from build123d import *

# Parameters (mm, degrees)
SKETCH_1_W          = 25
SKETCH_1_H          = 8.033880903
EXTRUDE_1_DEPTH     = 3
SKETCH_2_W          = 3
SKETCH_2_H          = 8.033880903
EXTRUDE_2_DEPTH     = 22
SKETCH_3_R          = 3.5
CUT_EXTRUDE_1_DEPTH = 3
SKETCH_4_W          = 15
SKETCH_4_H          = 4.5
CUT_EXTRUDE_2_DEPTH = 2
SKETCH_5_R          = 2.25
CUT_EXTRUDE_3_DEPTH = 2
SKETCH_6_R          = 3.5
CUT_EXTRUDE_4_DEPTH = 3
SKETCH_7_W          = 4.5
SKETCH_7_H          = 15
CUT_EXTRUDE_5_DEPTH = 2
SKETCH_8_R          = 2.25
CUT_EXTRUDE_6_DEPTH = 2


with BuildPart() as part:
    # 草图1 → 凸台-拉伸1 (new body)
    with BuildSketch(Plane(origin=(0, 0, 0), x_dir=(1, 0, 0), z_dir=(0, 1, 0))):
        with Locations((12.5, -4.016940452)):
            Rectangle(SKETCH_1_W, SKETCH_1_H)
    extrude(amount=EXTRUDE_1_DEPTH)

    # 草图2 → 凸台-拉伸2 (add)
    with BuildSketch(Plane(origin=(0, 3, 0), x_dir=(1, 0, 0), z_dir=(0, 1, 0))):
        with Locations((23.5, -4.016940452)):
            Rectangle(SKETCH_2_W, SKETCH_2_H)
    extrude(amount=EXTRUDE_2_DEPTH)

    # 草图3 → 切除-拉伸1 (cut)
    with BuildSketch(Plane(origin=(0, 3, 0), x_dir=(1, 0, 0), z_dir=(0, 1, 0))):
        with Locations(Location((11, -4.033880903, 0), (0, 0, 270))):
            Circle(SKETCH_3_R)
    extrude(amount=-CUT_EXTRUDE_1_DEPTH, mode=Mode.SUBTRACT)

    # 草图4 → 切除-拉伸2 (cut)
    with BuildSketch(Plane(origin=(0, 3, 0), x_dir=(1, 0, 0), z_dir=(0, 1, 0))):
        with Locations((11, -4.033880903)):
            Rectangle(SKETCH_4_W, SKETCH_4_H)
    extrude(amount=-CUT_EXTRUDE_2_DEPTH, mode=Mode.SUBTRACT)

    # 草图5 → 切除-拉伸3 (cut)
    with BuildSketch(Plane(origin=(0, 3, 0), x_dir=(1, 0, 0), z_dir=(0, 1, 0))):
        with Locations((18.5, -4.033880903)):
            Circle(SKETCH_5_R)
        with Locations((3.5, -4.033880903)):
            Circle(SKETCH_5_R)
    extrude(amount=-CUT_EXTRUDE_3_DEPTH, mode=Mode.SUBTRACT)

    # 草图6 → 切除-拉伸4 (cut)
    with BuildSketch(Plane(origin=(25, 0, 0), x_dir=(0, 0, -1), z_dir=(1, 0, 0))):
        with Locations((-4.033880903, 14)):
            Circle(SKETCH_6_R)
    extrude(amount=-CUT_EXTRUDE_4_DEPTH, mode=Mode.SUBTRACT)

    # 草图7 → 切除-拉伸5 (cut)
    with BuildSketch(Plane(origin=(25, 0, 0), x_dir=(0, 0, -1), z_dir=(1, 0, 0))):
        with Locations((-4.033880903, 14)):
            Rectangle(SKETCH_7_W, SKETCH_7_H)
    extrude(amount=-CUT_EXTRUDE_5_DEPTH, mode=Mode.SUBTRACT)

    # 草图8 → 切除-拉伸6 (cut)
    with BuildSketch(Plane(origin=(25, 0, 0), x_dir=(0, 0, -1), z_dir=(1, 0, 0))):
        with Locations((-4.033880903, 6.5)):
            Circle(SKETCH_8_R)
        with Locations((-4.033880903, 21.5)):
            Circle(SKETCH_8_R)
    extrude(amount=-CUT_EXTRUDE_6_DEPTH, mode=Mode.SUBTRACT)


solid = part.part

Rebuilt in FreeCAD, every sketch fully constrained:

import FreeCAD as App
import Part
import Sketcher
Q = App.Units.Quantity

doc = App.newDocument("Part")
body = doc.addObject("PartDesign::Body", "Body")

# Sketch on XZ plane
sketch1 = body.newObject("Sketcher::SketchObject", "Sketch")
sketch1.AttachmentSupport = (doc.getObject("XZ_Plane"), [""])
sketch1.MapMode = "FlatFace"
sketch1.addGeometry([
    Part.LineSegment(App.Vector(0, 0, 0), App.Vector(0, 8.033881, 0)),
    Part.LineSegment(App.Vector(0, 8.033881, 0), App.Vector(25, 8.033881, 0)),
    Part.LineSegment(App.Vector(25, 8.033881, 0), App.Vector(25, 0, 0)),
    Part.LineSegment(App.Vector(25, 0, 0), App.Vector(0, 0, 0)),
], False)
sketch1.addConstraint([
    Sketcher.Constraint("Coincident", 0, 2, 1, 1),
    Sketcher.Constraint("Coincident", 1, 2, 2, 1),
    Sketcher.Constraint("Coincident", 2, 2, 3, 1),
    Sketcher.Constraint("Coincident", 3, 2, 0, 1),
    Sketcher.Constraint("Vertical", 0),
    Sketcher.Constraint("Horizontal", 1),
    Sketcher.Constraint("Vertical", 2),
    Sketcher.Constraint("Horizontal", 3),
    Sketcher.Constraint("Coincident", 3, 2, -1, 1),
    Sketcher.Constraint("DistanceX", 1, 1, 1, 2, Q("25 mm")),
    Sketcher.Constraint("DistanceY", 0, 1, 0, 2, Q("8.033881 mm")),
])
pad1 = body.newObject("PartDesign::Pad", "Pad")
pad1.Profile = sketch1
pad1.Length = 3
pad1.Reversed = True

# Sketch on XZ plane
sketch2 = body.newObject("Sketcher::SketchObject", "Sketch001")
sketch2.AttachmentSupport = (doc.getObject("XZ_Plane"), [""])
sketch2.MapMode = "FlatFace"
sketch2.AttachmentOffset = App.Placement(App.Vector(0, 0, -3), App.Rotation())
sketch2.addGeometry([
    Part.LineSegment(App.Vector(22, 0, 0), App.Vector(22, 8.033881, 0)),
    Part.LineSegment(App.Vector(22, 8.033881, 0), App.Vector(25, 8.033881, 0)),
    Part.LineSegment(App.Vector(25, 8.033881, 0), App.Vector(25, 0, 0)),
    Part.LineSegment(App.Vector(25, 0, 0), App.Vector(22, 0, 0)),
], False)
sketch2.addConstraint([
    Sketcher.Constraint("Coincident", 0, 2, 1, 1),
    Sketcher.Constraint("Coincident", 1, 2, 2, 1),
    Sketcher.Constraint("Coincident", 2, 2, 3, 1),
    Sketcher.Constraint("Coincident", 3, 2, 0, 1),
    Sketcher.Constraint("Vertical", 0),
    Sketcher.Constraint("Horizontal", 1),
    Sketcher.Constraint("Vertical", 2),
    Sketcher.Constraint("Horizontal", 3),
    Sketcher.Constraint("PointOnObject", 2, 2, -1),
    Sketcher.Constraint("DistanceX", 1, 1, 1, 2, Q("3 mm")),
    Sketcher.Constraint("DistanceX", -1, 1, 0, 2, Q("22 mm")),
    Sketcher.Constraint("DistanceY", 0, 1, 0, 2, Q("8.033881 mm")),
])
pad2 = body.newObject("PartDesign::Pad", "Pad001")
pad2.Profile = sketch2
pad2.Length = 22
pad2.Reversed = True

# Sketch on XZ plane
sketch3 = body.newObject("Sketcher::SketchObject", "Sketch002")
sketch3.AttachmentSupport = (doc.getObject("XZ_Plane"), [""])
sketch3.MapMode = "FlatFace"
sketch3.AttachmentOffset = App.Placement(App.Vector(0, 0, -3), App.Rotation())
sketch3.addGeometry(Part.Circle(App.Vector(11, 4.033881, 0), App.Vector(0, 0, 1), 3.5), False)
sketch3.addConstraint([
    Sketcher.Constraint("Diameter", 0, Q("7 mm")),
    Sketcher.Constraint("DistanceX", -1, 1, 0, 3, Q("11 mm")),
    Sketcher.Constraint("DistanceY", -1, 1, 0, 3, Q("4.033881 mm")),
])
pocket1 = body.newObject("PartDesign::Pocket", "Pocket")
pocket1.Profile = sketch3
pocket1.Length = 3
pocket1.Reversed = True

# Sketch on XZ plane
sketch4 = body.newObject("Sketcher::SketchObject", "Sketch003")
sketch4.AttachmentSupport = (doc.getObject("XZ_Plane"), [""])
sketch4.MapMode = "FlatFace"
sketch4.AttachmentOffset = App.Placement(App.Vector(0, 0, -3), App.Rotation())
sketch4.addGeometry([
    Part.LineSegment(App.Vector(3.5, 1.783881, 0), App.Vector(3.5, 6.283881, 0)),
    Part.LineSegment(App.Vector(3.5, 6.283881, 0), App.Vector(18.5, 6.283881, 0)),
    Part.LineSegment(App.Vector(18.5, 6.283881, 0), App.Vector(18.5, 1.783881, 0)),
    Part.LineSegment(App.Vector(18.5, 1.783881, 0), App.Vector(3.5, 1.783881, 0)),
], False)
sketch4.addConstraint([
    Sketcher.Constraint("Coincident", 0, 2, 1, 1),
    Sketcher.Constraint("Coincident", 1, 2, 2, 1),
    Sketcher.Constraint("Coincident", 2, 2, 3, 1),
    Sketcher.Constraint("Coincident", 3, 2, 0, 1),
    Sketcher.Constraint("Vertical", 0),
    Sketcher.Constraint("Horizontal", 1),
    Sketcher.Constraint("Vertical", 2),
    Sketcher.Constraint("Horizontal", 3),
    Sketcher.Constraint("DistanceX", 1, 1, 1, 2, Q("15 mm")),
    Sketcher.Constraint("DistanceY", 0, 1, 0, 2, Q("4.5 mm")),
    Sketcher.Constraint("DistanceX", -1, 1, 0, 2, Q("3.5 mm")),
    Sketcher.Constraint("DistanceY", -1, 1, 0, 2, Q("6.283881 mm")),
])
pocket2 = body.newObject("PartDesign::Pocket", "Pocket001")
pocket2.Profile = sketch4
pocket2.Length = 2
pocket2.Reversed = True

# Sketch on XZ plane
sketch5 = body.newObject("Sketcher::SketchObject", "Sketch004")
sketch5.AttachmentSupport = (doc.getObject("XZ_Plane"), [""])
sketch5.MapMode = "FlatFace"
sketch5.AttachmentOffset = App.Placement(App.Vector(0, 0, -3), App.Rotation())
sketch5.addGeometry([
    Part.Circle(App.Vector(18.5, 4.033881, 0), App.Vector(0, 0, 1), 2.25),
    Part.Circle(App.Vector(3.5, 4.033881, 0), App.Vector(0, 0, 1), 2.25),
], False)
sketch5.addConstraint([
    Sketcher.Constraint("Equal", 0, 1),
    Sketcher.Constraint("Horizontal", 0, 3, 1, 3),
    Sketcher.Constraint("Diameter", 0, Q("4.5 mm")),
    Sketcher.Constraint("DistanceX", 1, 3, 0, 3, Q("15 mm")),
    Sketcher.Constraint("DistanceX", -1, 1, 0, 3, Q("18.5 mm")),
    Sketcher.Constraint("DistanceY", -1, 1, 0, 3, Q("4.033881 mm")),
])
pocket3 = body.newObject("PartDesign::Pocket", "Pocket002")
pocket3.Profile = sketch5
pocket3.Length = 2
pocket3.Reversed = True

# Sketch on YZ plane
sketch6 = body.newObject("Sketcher::SketchObject", "Sketch005")
sketch6.AttachmentSupport = (doc.getObject("YZ_Plane"), [""])
sketch6.MapMode = "FlatFace"
sketch6.AttachmentOffset = App.Placement(App.Vector(0, 0, 25), App.Rotation())
sketch6.addGeometry(Part.Circle(App.Vector(14, 4.033881, 0), App.Vector(0, 0, 1), 3.5), False)
sketch6.addConstraint([
    Sketcher.Constraint("Diameter", 0, Q("7 mm")),
    Sketcher.Constraint("DistanceX", -1, 1, 0, 3, Q("14 mm")),
    Sketcher.Constraint("DistanceY", -1, 1, 0, 3, Q("4.033881 mm")),
])
pocket4 = body.newObject("PartDesign::Pocket", "Pocket003")
pocket4.Profile = sketch6
pocket4.Length = 3

# Sketch on YZ plane
sketch7 = body.newObject("Sketcher::SketchObject", "Sketch006")
sketch7.AttachmentSupport = (doc.getObject("YZ_Plane"), [""])
sketch7.MapMode = "FlatFace"
sketch7.AttachmentOffset = App.Placement(App.Vector(0, 0, 25), App.Rotation())
sketch7.addGeometry([
    Part.LineSegment(App.Vector(21.5, 6.283881, 0), App.Vector(6.5, 6.283881, 0)),
    Part.LineSegment(App.Vector(6.5, 6.283881, 0), App.Vector(6.5, 1.783881, 0)),
    Part.LineSegment(App.Vector(6.5, 1.783881, 0), App.Vector(21.5, 1.783881, 0)),
    Part.LineSegment(App.Vector(21.5, 1.783881, 0), App.Vector(21.5, 6.283881, 0)),
], False)
sketch7.addConstraint([
    Sketcher.Constraint("Coincident", 0, 2, 1, 1),
    Sketcher.Constraint("Coincident", 1, 2, 2, 1),
    Sketcher.Constraint("Coincident", 2, 2, 3, 1),
    Sketcher.Constraint("Coincident", 3, 2, 0, 1),
    Sketcher.Constraint("Horizontal", 0),
    Sketcher.Constraint("Vertical", 1),
    Sketcher.Constraint("Horizontal", 2),
    Sketcher.Constraint("Vertical", 3),
    Sketcher.Constraint("DistanceX", 0, 2, 0, 1, Q("15 mm")),
    Sketcher.Constraint("DistanceY", 1, 2, 1, 1, Q("4.5 mm")),
    Sketcher.Constraint("DistanceX", -1, 1, 0, 2, Q("6.5 mm")),
    Sketcher.Constraint("DistanceY", -1, 1, 0, 2, Q("6.283881 mm")),
])
pocket5 = body.newObject("PartDesign::Pocket", "Pocket004")
pocket5.Profile = sketch7
pocket5.Length = 2

# Sketch on YZ plane
sketch8 = body.newObject("Sketcher::SketchObject", "Sketch007")
sketch8.AttachmentSupport = (doc.getObject("YZ_Plane"), [""])
sketch8.MapMode = "FlatFace"
sketch8.AttachmentOffset = App.Placement(App.Vector(0, 0, 25), App.Rotation())
sketch8.addGeometry([
    Part.Circle(App.Vector(6.5, 4.033881, 0), App.Vector(0, 0, 1), 2.25),
    Part.Circle(App.Vector(21.5, 4.033881, 0), App.Vector(0, 0, 1), 2.25),
], False)
sketch8.addConstraint([
    Sketcher.Constraint("Equal", 0, 1),
    Sketcher.Constraint("Horizontal", 0, 3, 1, 3),
    Sketcher.Constraint("Diameter", 0, Q("4.5 mm")),
    Sketcher.Constraint("DistanceX", 0, 3, 1, 3, Q("15 mm")),
    Sketcher.Constraint("DistanceX", -1, 1, 0, 3, Q("6.5 mm")),
    Sketcher.Constraint("DistanceY", -1, 1, 0, 3, Q("4.033881 mm")),
])
pocket6 = body.newObject("PartDesign::Pocket", "Pocket005")
pocket6.Profile = sketch8
pocket6.Length = 2

doc.recompute()
